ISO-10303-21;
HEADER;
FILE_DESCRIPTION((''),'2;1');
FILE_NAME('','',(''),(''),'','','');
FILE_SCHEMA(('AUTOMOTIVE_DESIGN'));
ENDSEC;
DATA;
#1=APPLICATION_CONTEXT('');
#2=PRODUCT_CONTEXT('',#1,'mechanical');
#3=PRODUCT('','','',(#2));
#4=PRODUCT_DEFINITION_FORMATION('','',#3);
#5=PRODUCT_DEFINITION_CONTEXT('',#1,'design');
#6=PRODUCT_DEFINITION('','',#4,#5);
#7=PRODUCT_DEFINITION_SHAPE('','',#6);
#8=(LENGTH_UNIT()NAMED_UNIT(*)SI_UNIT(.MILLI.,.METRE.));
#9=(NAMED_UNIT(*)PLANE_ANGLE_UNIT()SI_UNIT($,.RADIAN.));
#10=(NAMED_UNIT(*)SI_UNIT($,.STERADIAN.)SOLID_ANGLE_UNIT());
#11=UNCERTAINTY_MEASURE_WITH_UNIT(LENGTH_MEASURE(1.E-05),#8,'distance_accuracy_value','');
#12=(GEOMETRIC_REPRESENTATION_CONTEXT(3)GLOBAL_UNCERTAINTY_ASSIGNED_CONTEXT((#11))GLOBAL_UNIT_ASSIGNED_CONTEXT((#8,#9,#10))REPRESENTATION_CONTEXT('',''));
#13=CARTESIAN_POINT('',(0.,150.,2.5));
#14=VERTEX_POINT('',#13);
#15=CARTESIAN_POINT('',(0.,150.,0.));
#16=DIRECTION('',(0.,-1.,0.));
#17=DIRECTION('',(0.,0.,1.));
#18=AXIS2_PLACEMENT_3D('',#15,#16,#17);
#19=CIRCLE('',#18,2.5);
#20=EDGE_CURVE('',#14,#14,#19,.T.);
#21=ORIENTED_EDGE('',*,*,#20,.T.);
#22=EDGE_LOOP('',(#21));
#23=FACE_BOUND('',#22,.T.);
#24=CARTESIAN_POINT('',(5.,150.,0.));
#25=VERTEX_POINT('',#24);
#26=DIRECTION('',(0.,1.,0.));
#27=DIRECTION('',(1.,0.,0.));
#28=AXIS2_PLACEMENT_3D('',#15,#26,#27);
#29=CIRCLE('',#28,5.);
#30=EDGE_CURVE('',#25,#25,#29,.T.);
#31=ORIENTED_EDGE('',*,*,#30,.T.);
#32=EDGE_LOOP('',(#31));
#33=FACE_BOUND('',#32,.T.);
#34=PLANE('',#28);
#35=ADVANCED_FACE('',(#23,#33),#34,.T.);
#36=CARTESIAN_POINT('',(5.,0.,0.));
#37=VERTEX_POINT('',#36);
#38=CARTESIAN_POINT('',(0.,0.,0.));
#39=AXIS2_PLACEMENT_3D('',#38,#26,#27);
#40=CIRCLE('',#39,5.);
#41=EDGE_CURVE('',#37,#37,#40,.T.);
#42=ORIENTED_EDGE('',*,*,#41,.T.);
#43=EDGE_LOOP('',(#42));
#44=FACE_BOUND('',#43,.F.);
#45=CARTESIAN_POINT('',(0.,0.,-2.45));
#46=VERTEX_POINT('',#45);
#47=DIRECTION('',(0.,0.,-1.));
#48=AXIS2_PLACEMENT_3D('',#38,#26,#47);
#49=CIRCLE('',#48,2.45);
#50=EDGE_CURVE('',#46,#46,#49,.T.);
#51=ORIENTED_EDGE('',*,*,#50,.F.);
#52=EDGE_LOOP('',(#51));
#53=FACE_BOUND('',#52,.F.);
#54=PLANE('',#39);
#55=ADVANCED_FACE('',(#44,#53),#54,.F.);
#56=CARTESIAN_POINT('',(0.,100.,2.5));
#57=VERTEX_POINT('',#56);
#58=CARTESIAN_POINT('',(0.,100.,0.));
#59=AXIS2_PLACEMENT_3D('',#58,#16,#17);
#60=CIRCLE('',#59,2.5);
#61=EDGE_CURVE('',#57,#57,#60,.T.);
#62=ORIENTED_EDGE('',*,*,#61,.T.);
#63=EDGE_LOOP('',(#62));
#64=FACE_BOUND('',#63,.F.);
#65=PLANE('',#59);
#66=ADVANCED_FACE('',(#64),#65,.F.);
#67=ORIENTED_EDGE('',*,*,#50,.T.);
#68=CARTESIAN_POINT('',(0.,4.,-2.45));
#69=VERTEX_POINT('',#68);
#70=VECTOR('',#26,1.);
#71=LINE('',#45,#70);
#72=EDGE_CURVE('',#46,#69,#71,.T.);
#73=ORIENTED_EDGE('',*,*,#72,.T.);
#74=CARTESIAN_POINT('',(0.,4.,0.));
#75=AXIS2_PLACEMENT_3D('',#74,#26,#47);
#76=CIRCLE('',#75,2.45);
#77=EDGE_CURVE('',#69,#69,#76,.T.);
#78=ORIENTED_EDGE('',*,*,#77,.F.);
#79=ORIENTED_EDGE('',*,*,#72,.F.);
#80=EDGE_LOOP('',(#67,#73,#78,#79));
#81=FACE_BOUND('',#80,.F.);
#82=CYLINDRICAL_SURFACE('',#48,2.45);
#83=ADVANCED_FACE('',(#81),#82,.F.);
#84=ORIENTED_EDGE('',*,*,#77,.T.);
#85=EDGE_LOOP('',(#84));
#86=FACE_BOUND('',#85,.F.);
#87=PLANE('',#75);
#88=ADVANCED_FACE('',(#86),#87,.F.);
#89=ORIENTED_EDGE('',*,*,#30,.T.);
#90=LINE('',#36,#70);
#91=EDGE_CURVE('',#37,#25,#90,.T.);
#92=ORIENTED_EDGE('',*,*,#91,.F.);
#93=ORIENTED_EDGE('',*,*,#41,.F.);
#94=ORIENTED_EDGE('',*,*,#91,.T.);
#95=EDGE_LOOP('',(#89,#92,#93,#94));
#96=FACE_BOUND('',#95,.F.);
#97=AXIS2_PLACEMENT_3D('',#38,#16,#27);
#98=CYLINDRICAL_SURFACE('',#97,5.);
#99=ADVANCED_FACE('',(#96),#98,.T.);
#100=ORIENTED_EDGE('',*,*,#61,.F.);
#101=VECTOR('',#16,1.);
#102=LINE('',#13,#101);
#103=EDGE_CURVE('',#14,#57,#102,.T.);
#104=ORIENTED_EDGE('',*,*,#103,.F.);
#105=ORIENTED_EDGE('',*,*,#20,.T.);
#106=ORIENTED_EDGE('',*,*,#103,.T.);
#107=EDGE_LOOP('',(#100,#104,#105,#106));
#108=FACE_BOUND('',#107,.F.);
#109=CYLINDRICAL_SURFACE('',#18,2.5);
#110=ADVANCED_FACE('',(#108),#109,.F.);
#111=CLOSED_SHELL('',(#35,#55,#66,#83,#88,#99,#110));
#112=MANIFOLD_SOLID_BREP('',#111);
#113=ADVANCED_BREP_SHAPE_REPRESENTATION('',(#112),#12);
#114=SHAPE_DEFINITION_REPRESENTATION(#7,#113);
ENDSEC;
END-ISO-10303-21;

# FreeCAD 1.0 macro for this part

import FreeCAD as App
import Part
import Sketcher
Q = App.Units.Quantity

doc = App.newDocument("Part")
params = doc.addObject("Spreadsheet::Sheet", "Params")
for row, (alias, value) in enumerate([
    ("sketch1_diameter", "10 mm"),
    ("pad1_length", "150 mm"),
    ("sketch2_diameter", "5 mm"),
    ("hole_diameter", "5 mm"),
    ("hole_depth", "50 mm"),
    ("sketch3_diameter", "4.9 mm"),
    ("hole2_diameter", "4.9 mm"),
    ("hole2_depth", "4 mm"),
], start=1):
    params.set(f"A{row}", alias)
    params.set(f"B{row}", "=" + value)
    params.setAlias(f"B{row}", alias)

body = doc.addObject("PartDesign::Body", "Body")

# Sketch on XZ plane
sketch1 = body.newObject("Sketcher::SketchObject", "Sketch")
sketch1.AttachmentSupport = (doc.getObject("XZ_Plane"), [""])
sketch1.MapMode = "FlatFace"
sketch1.addGeometry(Part.Circle(App.Vector(0, 0, 0), App.Vector(0, 0, 1), 5), False)
sketch1.addConstraint(Sketcher.Constraint("Coincident", 0, 3, -1, 1))
sketch1.addConstraint(Sketcher.Constraint("Diameter", 0, Q("10 mm")))
sketch1.setExpression("Constraints[1]", "Params.sketch1_diameter")
pad1 = body.newObject("PartDesign::Pad", "Pad")
pad1.Profile = sketch1
pad1.setExpression("Length", "Params.pad1_length")
pad1.Reversed = True

# Sketch on XZ plane
sketch2 = body.newObject("Sketcher::SketchObject", "Sketch001")
sketch2.AttachmentSupport = (doc.getObject("XZ_Plane"), [""])
sketch2.MapMode = "FlatFace"
sketch2.AttachmentOffset = App.Placement(App.Vector(0, 0, -150), App.Rotation())
sketch2.addGeometry(Part.Circle(App.Vector(0, 0, 0), App.Vector(0, 0, 1), 2.5), False)
sketch2.addConstraint(Sketcher.Constraint("Coincident", 0, 3, -1, 1))
sketch2.addConstraint(Sketcher.Constraint("Diameter", 0, Q("5 mm")))
sketch2.setExpression("Constraints[1]", "Params.sketch2_diameter")
doc.recompute()
hole = body.newObject("PartDesign::Hole", "Hole")
hole.Profile = sketch2
hole.ThreadType = "None"
hole.setExpression("Diameter", "Params.hole_diameter")
hole.DepthType = "Dimension"
hole.setExpression("Depth", "Params.hole_depth")
hole.DrillPoint = "Flat"
hole.Reversed = True

# Sketch on XZ plane
sketch3 = body.newObject("Sketcher::SketchObject", "Sketch002")
sketch3.AttachmentSupport = (doc.getObject("XZ_Plane"), [""])
sketch3.MapMode = "FlatFace"
sketch3.addGeometry(Part.Circle(App.Vector(0, 0, 0), App.Vector(0, 0, 1), 2.45), False)
sketch3.addConstraint(Sketcher.Constraint("Coincident", 0, 3, -1, 1))
sketch3.addConstraint(Sketcher.Constraint("Diameter", 0, Q("4.9 mm")))
sketch3.setExpression("Constraints[1]", "Params.sketch3_diameter")
doc.recompute()
hole2 = body.newObject("PartDesign::Hole", "Hole001")
hole2.Profile = sketch3
hole2.ThreadType = "None"
hole2.setExpression("Diameter", "Params.hole2_diameter")
hole2.DepthType = "Dimension"
hole2.setExpression("Depth", "Params.hole2_depth")
hole2.DrillPoint = "Flat"

doc.recompute()
